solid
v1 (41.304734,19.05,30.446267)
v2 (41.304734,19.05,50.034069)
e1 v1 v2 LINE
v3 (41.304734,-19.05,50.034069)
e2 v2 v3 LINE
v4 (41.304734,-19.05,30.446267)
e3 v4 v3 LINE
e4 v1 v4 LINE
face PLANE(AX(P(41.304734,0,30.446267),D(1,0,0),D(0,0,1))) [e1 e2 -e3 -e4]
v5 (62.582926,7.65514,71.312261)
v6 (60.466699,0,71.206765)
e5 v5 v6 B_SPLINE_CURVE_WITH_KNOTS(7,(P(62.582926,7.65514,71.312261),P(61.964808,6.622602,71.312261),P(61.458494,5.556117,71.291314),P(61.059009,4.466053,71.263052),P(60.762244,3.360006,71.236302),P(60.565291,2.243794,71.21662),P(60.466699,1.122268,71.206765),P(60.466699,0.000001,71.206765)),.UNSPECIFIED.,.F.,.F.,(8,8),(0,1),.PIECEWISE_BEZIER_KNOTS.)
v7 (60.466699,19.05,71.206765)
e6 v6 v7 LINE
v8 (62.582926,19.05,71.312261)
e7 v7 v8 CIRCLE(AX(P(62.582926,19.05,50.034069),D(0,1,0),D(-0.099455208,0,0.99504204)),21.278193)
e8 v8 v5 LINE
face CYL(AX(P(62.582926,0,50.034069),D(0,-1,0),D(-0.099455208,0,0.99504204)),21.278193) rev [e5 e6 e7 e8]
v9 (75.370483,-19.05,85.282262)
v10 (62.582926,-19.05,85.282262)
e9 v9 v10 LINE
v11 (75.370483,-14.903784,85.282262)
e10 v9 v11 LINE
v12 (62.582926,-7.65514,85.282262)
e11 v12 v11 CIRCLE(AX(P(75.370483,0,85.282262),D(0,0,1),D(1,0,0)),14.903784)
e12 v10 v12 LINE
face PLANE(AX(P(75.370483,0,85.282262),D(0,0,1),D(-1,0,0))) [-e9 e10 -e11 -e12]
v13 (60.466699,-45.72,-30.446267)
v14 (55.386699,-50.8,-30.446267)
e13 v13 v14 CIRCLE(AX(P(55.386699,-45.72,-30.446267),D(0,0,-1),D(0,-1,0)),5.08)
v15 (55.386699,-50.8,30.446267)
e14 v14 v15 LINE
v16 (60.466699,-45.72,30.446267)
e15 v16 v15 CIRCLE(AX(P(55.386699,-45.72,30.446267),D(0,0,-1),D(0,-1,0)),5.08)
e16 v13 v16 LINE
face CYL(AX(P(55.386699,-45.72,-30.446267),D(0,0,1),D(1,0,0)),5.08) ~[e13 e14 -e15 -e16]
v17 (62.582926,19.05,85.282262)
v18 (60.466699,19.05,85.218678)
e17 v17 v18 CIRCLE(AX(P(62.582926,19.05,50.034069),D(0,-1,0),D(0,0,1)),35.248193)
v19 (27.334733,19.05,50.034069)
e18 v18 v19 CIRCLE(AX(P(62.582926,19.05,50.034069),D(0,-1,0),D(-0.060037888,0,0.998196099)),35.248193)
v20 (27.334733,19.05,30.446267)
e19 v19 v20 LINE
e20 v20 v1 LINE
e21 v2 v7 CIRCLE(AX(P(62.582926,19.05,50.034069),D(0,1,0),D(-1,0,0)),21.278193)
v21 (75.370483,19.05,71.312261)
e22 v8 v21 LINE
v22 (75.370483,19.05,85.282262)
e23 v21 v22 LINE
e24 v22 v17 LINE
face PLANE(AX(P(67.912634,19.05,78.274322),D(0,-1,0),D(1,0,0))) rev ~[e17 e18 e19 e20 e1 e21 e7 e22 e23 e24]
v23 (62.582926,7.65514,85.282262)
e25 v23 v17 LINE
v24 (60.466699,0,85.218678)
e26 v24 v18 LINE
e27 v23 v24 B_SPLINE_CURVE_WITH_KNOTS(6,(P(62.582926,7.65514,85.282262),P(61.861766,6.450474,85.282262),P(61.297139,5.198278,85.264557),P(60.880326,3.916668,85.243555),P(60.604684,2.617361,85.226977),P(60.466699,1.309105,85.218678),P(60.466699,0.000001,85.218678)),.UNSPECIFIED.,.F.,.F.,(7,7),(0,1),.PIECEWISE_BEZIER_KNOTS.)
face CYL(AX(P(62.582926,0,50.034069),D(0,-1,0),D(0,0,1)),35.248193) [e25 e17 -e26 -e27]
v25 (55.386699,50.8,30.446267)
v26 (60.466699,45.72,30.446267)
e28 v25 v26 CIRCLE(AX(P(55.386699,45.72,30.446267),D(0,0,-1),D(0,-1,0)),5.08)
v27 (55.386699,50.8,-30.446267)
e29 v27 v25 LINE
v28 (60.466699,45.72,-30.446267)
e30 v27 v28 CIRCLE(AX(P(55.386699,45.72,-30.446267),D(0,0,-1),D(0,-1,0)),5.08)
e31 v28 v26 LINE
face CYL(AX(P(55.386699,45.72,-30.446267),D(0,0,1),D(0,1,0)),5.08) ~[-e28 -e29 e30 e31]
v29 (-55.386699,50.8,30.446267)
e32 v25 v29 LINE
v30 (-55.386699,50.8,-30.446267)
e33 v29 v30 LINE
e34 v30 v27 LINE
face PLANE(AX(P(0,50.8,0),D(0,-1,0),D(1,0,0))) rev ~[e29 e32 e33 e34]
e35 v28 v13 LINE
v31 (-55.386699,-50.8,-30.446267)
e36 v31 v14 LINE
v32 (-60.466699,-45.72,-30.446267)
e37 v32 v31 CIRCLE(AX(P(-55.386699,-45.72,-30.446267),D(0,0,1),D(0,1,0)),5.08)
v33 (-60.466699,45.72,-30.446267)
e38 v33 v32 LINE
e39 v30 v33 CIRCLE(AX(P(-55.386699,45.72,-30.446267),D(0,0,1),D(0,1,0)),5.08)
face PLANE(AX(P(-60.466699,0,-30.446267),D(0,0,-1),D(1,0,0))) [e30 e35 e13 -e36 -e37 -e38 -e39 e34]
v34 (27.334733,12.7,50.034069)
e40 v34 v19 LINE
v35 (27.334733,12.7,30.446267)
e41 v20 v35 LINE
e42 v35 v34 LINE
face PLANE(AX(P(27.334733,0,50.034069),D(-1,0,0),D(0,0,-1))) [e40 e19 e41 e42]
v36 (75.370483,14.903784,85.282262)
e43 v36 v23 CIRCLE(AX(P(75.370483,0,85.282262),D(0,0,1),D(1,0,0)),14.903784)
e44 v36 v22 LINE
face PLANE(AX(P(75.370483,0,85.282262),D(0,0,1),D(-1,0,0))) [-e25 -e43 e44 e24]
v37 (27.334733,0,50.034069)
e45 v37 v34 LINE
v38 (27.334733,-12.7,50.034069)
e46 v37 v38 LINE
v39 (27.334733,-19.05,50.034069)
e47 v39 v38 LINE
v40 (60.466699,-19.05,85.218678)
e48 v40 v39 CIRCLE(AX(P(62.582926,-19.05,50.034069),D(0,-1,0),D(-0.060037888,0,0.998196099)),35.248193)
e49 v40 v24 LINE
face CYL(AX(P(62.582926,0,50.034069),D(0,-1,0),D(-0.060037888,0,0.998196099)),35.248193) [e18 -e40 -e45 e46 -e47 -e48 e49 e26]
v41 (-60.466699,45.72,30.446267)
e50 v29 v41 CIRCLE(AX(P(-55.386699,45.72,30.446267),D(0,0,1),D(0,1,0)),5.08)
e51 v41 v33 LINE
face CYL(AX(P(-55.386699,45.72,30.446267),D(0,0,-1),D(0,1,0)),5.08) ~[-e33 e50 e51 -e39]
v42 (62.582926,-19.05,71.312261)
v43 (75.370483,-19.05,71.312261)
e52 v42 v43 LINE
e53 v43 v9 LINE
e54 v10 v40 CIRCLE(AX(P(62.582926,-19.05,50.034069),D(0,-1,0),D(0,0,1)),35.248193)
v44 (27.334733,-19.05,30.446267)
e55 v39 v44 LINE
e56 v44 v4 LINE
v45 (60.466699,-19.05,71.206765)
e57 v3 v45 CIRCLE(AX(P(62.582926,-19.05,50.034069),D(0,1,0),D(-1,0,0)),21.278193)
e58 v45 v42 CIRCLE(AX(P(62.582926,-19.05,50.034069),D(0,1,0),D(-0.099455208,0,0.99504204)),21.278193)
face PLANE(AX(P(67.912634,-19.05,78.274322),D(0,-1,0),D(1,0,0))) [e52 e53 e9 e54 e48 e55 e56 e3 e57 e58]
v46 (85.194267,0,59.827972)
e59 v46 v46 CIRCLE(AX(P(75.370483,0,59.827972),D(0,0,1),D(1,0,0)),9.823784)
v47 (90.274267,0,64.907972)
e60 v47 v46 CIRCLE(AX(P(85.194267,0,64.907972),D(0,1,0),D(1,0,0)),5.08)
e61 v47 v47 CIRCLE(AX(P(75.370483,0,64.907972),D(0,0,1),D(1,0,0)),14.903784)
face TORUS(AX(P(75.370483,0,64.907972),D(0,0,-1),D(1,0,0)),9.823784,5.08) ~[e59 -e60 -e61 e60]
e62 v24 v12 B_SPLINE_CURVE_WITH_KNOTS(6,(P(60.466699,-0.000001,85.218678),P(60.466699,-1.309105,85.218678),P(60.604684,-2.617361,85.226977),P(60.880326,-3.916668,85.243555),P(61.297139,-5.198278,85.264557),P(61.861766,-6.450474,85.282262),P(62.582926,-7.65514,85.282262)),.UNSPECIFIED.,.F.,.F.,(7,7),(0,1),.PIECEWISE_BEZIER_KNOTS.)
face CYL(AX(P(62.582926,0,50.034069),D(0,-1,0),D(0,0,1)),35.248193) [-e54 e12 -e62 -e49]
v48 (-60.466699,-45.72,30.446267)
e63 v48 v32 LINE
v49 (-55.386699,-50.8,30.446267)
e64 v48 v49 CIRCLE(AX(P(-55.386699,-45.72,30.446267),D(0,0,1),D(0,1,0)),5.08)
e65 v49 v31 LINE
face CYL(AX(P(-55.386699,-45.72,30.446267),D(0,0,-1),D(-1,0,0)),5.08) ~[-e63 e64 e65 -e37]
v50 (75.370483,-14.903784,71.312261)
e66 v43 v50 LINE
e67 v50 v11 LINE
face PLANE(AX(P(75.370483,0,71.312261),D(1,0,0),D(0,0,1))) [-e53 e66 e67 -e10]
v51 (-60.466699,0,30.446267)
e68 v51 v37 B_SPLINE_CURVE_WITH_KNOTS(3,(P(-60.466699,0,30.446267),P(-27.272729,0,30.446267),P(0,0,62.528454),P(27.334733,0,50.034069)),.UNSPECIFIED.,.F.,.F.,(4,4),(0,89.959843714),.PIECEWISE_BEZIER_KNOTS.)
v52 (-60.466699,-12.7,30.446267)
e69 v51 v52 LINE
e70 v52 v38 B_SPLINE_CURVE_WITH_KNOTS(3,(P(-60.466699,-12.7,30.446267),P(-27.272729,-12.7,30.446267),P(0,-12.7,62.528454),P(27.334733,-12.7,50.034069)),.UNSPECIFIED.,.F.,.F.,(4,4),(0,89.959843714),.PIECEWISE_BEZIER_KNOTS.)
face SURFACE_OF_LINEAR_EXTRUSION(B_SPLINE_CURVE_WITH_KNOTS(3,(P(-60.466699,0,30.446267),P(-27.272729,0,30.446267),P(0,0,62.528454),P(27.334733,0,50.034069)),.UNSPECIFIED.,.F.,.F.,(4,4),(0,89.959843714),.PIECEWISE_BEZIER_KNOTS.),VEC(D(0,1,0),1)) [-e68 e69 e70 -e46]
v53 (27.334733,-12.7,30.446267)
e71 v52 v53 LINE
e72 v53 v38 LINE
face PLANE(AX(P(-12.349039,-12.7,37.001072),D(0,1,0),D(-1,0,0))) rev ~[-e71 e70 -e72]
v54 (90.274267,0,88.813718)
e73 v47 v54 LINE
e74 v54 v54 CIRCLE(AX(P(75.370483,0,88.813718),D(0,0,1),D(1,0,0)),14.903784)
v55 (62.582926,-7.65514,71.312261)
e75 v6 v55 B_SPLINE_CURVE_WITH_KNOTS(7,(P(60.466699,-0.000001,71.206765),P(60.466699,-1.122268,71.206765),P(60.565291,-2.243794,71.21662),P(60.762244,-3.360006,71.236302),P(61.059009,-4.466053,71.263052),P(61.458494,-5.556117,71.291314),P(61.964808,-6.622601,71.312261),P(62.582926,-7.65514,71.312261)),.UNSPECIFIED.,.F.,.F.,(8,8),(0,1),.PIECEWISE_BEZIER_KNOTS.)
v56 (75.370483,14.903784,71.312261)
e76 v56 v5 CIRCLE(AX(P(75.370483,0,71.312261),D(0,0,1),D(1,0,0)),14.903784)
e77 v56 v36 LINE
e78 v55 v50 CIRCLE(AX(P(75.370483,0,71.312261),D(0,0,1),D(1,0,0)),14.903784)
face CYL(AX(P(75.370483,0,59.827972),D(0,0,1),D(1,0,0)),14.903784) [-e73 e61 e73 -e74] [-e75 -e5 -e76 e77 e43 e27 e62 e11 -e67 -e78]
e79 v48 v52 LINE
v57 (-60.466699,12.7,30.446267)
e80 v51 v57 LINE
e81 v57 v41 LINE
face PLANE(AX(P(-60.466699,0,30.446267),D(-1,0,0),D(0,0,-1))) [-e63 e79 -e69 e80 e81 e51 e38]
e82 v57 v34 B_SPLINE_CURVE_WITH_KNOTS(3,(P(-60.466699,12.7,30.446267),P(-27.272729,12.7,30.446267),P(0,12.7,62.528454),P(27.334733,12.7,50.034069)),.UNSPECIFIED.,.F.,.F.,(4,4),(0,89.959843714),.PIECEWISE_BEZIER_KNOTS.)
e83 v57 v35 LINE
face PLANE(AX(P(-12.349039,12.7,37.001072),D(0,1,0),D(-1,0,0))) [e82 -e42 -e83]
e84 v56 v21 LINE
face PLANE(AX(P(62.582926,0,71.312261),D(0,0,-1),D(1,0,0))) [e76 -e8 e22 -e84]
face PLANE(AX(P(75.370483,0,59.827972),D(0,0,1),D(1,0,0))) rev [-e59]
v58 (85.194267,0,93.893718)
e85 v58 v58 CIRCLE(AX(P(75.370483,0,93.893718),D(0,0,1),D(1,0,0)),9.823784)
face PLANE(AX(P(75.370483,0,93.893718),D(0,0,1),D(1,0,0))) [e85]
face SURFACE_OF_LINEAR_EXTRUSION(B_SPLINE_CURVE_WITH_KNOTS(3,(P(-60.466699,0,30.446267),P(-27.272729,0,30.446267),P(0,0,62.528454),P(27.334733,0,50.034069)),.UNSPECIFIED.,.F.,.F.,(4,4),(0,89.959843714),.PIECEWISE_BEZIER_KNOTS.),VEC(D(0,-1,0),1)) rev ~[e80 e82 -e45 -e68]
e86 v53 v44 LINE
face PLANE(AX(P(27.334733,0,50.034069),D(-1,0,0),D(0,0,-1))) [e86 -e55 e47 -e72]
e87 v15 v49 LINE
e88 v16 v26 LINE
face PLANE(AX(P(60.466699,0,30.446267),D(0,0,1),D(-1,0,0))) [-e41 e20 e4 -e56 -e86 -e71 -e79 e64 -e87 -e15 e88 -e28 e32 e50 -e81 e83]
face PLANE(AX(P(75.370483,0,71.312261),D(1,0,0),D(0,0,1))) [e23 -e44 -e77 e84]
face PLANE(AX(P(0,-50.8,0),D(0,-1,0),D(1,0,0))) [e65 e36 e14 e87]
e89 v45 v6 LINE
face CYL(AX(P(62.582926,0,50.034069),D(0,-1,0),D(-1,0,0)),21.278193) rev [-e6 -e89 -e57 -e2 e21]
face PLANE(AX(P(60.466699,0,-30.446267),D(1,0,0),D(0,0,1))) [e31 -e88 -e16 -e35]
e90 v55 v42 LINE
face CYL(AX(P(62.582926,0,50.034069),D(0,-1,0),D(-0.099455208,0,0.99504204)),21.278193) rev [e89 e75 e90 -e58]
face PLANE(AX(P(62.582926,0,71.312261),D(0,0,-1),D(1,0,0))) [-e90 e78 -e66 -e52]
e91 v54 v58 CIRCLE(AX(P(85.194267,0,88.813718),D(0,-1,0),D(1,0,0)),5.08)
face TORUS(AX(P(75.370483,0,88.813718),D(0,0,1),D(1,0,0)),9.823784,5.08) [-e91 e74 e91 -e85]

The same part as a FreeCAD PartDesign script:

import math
import FreeCAD as App
import Part
import Sketcher
Q = App.Units.Quantity


def edges_at(feature, points):
    """Names of the edges that pass closest to the given points."""
    edges = feature.Shape.Edges
    near = lambda p: min(range(len(edges)), key=lambda i: edges[i].distToShape(Part.Vertex(*p))[0])
    return sorted({f"Edge{near(p) + 1}" for p in points})

doc = App.newDocument("Part")
params = doc.addObject("Spreadsheet::Sheet", "Params")
for row, (alias, value) in enumerate([
    ("pad1_length", "4 in"),
    ("sketch2_width", "0.55 in"),
    ("pad2_length", "1.5 in"),
    ("sketch3_height", "0.55 in"),
    ("pad3_length", "1.5 in"),
    ("revolution_angle", "360 deg"),
    ("fillet_radius", "0.2 in"),
    ("fillet2_radius", "0.2 in"),
    ("pad4_length", "1 in"),
], start=1):
    params.set(f"A{row}", alias)
    params.set(f"B{row}", "=" + value)
    params.setAlias(f"B{row}", alias)

body = doc.addObject("PartDesign::Body", "Body")

# Sketch on XZ plane
sketch1 = body.newObject("Sketcher::SketchObject", "Sketch")
sketch1.AttachmentSupport = (doc.getObject("XZ_Plane"), [""])
sketch1.MapMode = "FlatFace"
sketch1.addGeometry([
    Part.LineSegment(App.Vector(-60, 30, 0), App.Vector(-60, -30, 0)),
    Part.LineSegment(App.Vector(-60, -30, 0), App.Vector(60, -30, 0)),
    Part.LineSegment(App.Vector(60, -30, 0), App.Vector(60, 30, 0)),
    Part.LineSegment(App.Vector(60, 30, 0), App.Vector(-60, 30, 0)),
], False)
sketch1.addConstraint([
    Sketcher.Constraint("Coincident", 0, 2, 1, 1),
    Sketcher.Constraint("Coincident", 1, 2, 2, 1),
    Sketcher.Constraint("Coincident", 2, 2, 3, 1),
    Sketcher.Constraint("Coincident", 3, 2, 0, 1),
    Sketcher.Constraint("Vertical", 0),
    Sketcher.Constraint("Horizontal", 1),
    Sketcher.Constraint("Vertical", 2),
    Sketcher.Constraint("Horizontal", 3),
    Sketcher.Constraint("Symmetric", 0, 2, 2, 2, -1, 1),
    Sketcher.Constraint("DistanceX", 1, 1, 1, 2, Q("120.933399 mm")),
    Sketcher.Constraint("DistanceY", 0, 2, 0, 1, Q("60.892534 mm")),
])
pad1 = body.newObject("PartDesign::Pad", "Pad")
pad1.Profile = sketch1
pad1.setExpression("Length", "Params.pad1_length")
pad1.Midplane = True

# Sketch on XZ plane
sketch2 = body.newObject("Sketcher::SketchObject", "Sketch001")
sketch2.AttachmentSupport = (doc.getObject("XZ_Plane"), [""])
sketch2.MapMode = "FlatFace"
sketch2.addGeometry([
    Part.LineSegment(App.Vector(27, 50, 0), App.Vector(27, 30, 0)),  # 0
    Part.LineSegment(App.Vector(27, 30, 0), App.Vector(41, 30, 0)),  # 1
    Part.LineSegment(App.Vector(41, 30, 0), App.Vector(41, 50, 0)),  # 2
    Part.ArcOfCircle(Part.Circle(App.Vector(63, 50, 0), App.Vector(0, 0, 1), 21), math.radians(96), math.radians(180)),  # 3
    Part.LineSegment(App.Vector(60, 71, 0), App.Vector(60, 85, 0)),  # 4
    Part.ArcOfCircle(Part.Circle(App.Vector(63, 50, 0), App.Vector(0, 0, 1), 35), math.radians(93), math.radians(180)),  # 5
], False)
sketch2.addConstraint([
    Sketcher.Constraint("Coincident", 0, 2, 1, 1),
    Sketcher.Constraint("Coincident", 1, 2, 2, 1),
    Sketcher.Constraint("Tangent", 2, 2, 3, 2),
    Sketcher.Constraint("Coincident", 3, 1, 4, 1),
    Sketcher.Constraint("Coincident", 4, 2, 5, 1),
    Sketcher.Constraint("Tangent", 5, 2, 0, 1),
    Sketcher.Constraint("Vertical", 0),
    Sketcher.Constraint("Horizontal", 1),
    Sketcher.Constraint("Vertical", 2),
    Sketcher.Constraint("Vertical", 4),
    Sketcher.Constraint("Coincident", 5, 3, 3, 3),
    Sketcher.Constraint("DistanceX", 1, 1, 1, 2, Q("0.55 in")),
    Sketcher.Constraint("DistanceY", 0, 2, 0, 1, Q("19.587802 mm")),
    Sketcher.Constraint("Radius", 3, Q("21.278193 mm")),
    Sketcher.Constraint("DistanceX", -1, 1, 3, 1, Q("60.466699 mm")),
    Sketcher.Constraint("DistanceY", 1, 2, 3, 1, Q("40.760498 mm")),
    Sketcher.Constraint("DistanceY", -1, 1, 3, 3, Q("50.034069 mm")),
])
sketch2.setExpression("Constraints[11]", "Params.sketch2_width")
pad2 = body.newObject("PartDesign::Pad", "Pad001")
pad2.Profile = sketch2
pad2.setExpression("Length", "Params.pad2_length")
pad2.Midplane = True

# Sketch on XZ plane
sketch3 = body.newObject("Sketcher::SketchObject", "Sketch002")
sketch3.AttachmentSupport = (doc.getObject("XZ_Plane"), [""])
sketch3.MapMode = "FlatFace"
sketch3.addGeometry([
    Part.ArcOfCircle(Part.Circle(App.Vector(62.582926, 50.034069, 0), App.Vector(0, 0, 1), 35.248193), math.radians(90), math.radians(93.441988)),  # 0
    Part.LineSegment(App.Vector(60.466699, 85.218678, 0), App.Vector(60.466699, 71.206765, 0)),  # 1
    Part.ArcOfCircle(Part.Circle(App.Vector(62.582926, 50.034069, 0), App.Vector(0, 0, 1), 21.278193), math.radians(90), math.radians(95.7078)),  # 2
    Part.LineSegment(App.Vector(62.582926, 71.312261, 0), App.Vector(75.370483, 71.312261, 0)),  # 3
    Part.LineSegment(App.Vector(75.370483, 71.312261, 0), App.Vector(75.370483, 85.282262, 0)),  # 4
    Part.LineSegment(App.Vector(75.370483, 85.282262, 0), App.Vector(62.582926, 85.282262, 0)),  # 5
], False)
sketch3.addConstraint([
    Sketcher.Constraint("Coincident", 0, 2, 1, 1),
    Sketcher.Constraint("Coincident", 1, 2, 2, 2),
    Sketcher.Constraint("Tangent", 2, 1, 3, 1),
    Sketcher.Constraint("Coincident", 3, 2, 4, 1),
    Sketcher.Constraint("Coincident", 4, 2, 5, 1),
    Sketcher.Constraint("Tangent", 5, 2, 0, 1),
    Sketcher.Constraint("Vertical", 1),
    Sketcher.Constraint("Horizontal", 3),
    Sketcher.Constraint("Vertical", 4),
    Sketcher.Constraint("Horizontal", 5),
    Sketcher.Constraint("Coincident", 2, 3, 0, 3),
    Sketcher.Constraint("DistanceY", 4, 1, 4, 2, Q("0.55 in")),
    Sketcher.Constraint("Radius", 0, Q("35.248193 mm")),
    Sketcher.Constraint("DistanceX", -1, 1, 0, 2, Q("60.466699 mm")),
    Sketcher.Constraint("DistanceX", 3, 1, 3, 2, Q("12.787557 mm")),
    Sketcher.Constraint("DistanceY", 1, 2, 1, 1, Q("14.011913 mm")),
    Sketcher.Constraint("DistanceY", -1, 1, 0, 3, Q("50.034069 mm")),
])
sketch3.setExpression("Constraints[11]", "Params.sketch3_height")
pad3 = body.newObject("PartDesign::Pad", "Pad002")
pad3.Profile = sketch3
pad3.setExpression("Length", "Params.pad3_length")
pad3.Midplane = True

# Sketch on XZ plane
sketch4 = body.newObject("Sketcher::SketchObject", "Sketch003")
sketch4.AttachmentSupport = (doc.getObject("XZ_Plane"), [""])
sketch4.MapMode = "FlatFace"
sketch4.addGeometry([
    Part.LineSegment(App.Vector(90, 94, 0), App.Vector(75, 94, 0)),
    Part.LineSegment(App.Vector(75, 94, 0), App.Vector(75, 60, 0)),
    Part.LineSegment(App.Vector(75, 60, 0), App.Vector(90, 60, 0)),
    Part.LineSegment(App.Vector(90, 60, 0), App.Vector(90, 94, 0)),
], False)
sketch4.addGeometry(Part.LineSegment(App.Vector(75, 60, 0), App.Vector(75, 94, 0)), True)  # axis
sketch4.addConstraint([
    Sketcher.Constraint("Coincident", 0, 2, 1, 1),
    Sketcher.Constraint("Coincident", 1, 2, 2, 1),
    Sketcher.Constraint("Coincident", 2, 2, 3, 1),
    Sketcher.Constraint("Coincident", 3, 2, 0, 1),
    Sketcher.Constraint("Horizontal", 0),
    Sketcher.Constraint("Vertical", 1),
    Sketcher.Constraint("Horizontal", 2),
    Sketcher.Constraint("Vertical", 3),
    Sketcher.Constraint("Vertical", 4),
    Sketcher.Constraint("Coincident", 4, 1, 1, 2),
    Sketcher.Constraint("Horizontal", 3, 2, 4, 2),
    Sketcher.Constraint("DistanceX", 0, 2, 0, 1, Q("14.903784 mm")),
    Sketcher.Constraint("DistanceY", 1, 2, 1, 1, Q("34.065746 mm")),
    Sketcher.Constraint("DistanceX", -1, 1, 0, 2, Q("75.370483 mm")),
    Sketcher.Constraint("DistanceY", -1, 1, 0, 2, Q("93.893718 mm")),
])
revolution = body.newObject("PartDesign::Revolution", "Revolution")
revolution.Profile = sketch4
revolution.ReferenceAxis = (sketch4, ["Axis0"])
revolution.setExpression("Angle", "Params.revolution_angle")
doc.recompute()

fillet = body.newObject("PartDesign::Fillet", "Fillet")
fillet.Base = (revolution, edges_at(revolution, [
    (60.467, -50.8, 0),
    (60.467, 50.8, 0),
    (-60.467, 50.8, 0),
    (-60.467, -50.8, 0),
]))
fillet.setExpression("Radius", "Params.fillet_radius")
doc.recompute()

fillet2 = body.newObject("PartDesign::Fillet", "Fillet001")
fillet2.Base = (fillet, edges_at(fillet, [(60.467, 0, 93.894), (60.467, 0, 59.828)]))
fillet2.setExpression("Radius", "Params.fillet2_radius")

# Sketch on XZ plane
sketch5 = body.newObject("Sketcher::SketchObject", "Sketch004")
sketch5.AttachmentSupport = (doc.getObject("XZ_Plane"), [""])
sketch5.MapMode = "FlatFace"
sketch5.addGeometry([
    Part.BSplineCurve([App.Vector(-60.466699, 30.446267, 0), App.Vector(-27.272729, 30.446267, 0), App.Vector(0, 62.528454, 0), App.Vector(27.334733, 50.034069, 0)], [4, 4], [0, 89.959843714], False, 3, [1, 1, 1, 1], False),
    Part.LineSegment(App.Vector(-60.466699, 30.446267, 0), App.Vector(27.334733, 30.446267, 0)),
    Part.LineSegment(App.Vector(27.334733, 30.446267, 0), App.Vector(27.334733, 50.034069, 0)),
], False)
sketch5.addConstraint([
    Sketcher.Constraint("Block", 0),
    Sketcher.Constraint("Coincident", 0, 1, 1, 1),
    Sketcher.Constraint("Coincident", 1, 2, 2, 1),
    Sketcher.Constraint("Coincident", 2, 2, 0, 2),
    Sketcher.Constraint("Horizontal", 1),
    Sketcher.Constraint("Vertical", 2),
])
pad4 = body.newObject("PartDesign::Pad", "Pad003")
pad4.Profile = sketch5
pad4.setExpression("Length", "Params.pad4_length")
pad4.Midplane = True

doc.recompute()
